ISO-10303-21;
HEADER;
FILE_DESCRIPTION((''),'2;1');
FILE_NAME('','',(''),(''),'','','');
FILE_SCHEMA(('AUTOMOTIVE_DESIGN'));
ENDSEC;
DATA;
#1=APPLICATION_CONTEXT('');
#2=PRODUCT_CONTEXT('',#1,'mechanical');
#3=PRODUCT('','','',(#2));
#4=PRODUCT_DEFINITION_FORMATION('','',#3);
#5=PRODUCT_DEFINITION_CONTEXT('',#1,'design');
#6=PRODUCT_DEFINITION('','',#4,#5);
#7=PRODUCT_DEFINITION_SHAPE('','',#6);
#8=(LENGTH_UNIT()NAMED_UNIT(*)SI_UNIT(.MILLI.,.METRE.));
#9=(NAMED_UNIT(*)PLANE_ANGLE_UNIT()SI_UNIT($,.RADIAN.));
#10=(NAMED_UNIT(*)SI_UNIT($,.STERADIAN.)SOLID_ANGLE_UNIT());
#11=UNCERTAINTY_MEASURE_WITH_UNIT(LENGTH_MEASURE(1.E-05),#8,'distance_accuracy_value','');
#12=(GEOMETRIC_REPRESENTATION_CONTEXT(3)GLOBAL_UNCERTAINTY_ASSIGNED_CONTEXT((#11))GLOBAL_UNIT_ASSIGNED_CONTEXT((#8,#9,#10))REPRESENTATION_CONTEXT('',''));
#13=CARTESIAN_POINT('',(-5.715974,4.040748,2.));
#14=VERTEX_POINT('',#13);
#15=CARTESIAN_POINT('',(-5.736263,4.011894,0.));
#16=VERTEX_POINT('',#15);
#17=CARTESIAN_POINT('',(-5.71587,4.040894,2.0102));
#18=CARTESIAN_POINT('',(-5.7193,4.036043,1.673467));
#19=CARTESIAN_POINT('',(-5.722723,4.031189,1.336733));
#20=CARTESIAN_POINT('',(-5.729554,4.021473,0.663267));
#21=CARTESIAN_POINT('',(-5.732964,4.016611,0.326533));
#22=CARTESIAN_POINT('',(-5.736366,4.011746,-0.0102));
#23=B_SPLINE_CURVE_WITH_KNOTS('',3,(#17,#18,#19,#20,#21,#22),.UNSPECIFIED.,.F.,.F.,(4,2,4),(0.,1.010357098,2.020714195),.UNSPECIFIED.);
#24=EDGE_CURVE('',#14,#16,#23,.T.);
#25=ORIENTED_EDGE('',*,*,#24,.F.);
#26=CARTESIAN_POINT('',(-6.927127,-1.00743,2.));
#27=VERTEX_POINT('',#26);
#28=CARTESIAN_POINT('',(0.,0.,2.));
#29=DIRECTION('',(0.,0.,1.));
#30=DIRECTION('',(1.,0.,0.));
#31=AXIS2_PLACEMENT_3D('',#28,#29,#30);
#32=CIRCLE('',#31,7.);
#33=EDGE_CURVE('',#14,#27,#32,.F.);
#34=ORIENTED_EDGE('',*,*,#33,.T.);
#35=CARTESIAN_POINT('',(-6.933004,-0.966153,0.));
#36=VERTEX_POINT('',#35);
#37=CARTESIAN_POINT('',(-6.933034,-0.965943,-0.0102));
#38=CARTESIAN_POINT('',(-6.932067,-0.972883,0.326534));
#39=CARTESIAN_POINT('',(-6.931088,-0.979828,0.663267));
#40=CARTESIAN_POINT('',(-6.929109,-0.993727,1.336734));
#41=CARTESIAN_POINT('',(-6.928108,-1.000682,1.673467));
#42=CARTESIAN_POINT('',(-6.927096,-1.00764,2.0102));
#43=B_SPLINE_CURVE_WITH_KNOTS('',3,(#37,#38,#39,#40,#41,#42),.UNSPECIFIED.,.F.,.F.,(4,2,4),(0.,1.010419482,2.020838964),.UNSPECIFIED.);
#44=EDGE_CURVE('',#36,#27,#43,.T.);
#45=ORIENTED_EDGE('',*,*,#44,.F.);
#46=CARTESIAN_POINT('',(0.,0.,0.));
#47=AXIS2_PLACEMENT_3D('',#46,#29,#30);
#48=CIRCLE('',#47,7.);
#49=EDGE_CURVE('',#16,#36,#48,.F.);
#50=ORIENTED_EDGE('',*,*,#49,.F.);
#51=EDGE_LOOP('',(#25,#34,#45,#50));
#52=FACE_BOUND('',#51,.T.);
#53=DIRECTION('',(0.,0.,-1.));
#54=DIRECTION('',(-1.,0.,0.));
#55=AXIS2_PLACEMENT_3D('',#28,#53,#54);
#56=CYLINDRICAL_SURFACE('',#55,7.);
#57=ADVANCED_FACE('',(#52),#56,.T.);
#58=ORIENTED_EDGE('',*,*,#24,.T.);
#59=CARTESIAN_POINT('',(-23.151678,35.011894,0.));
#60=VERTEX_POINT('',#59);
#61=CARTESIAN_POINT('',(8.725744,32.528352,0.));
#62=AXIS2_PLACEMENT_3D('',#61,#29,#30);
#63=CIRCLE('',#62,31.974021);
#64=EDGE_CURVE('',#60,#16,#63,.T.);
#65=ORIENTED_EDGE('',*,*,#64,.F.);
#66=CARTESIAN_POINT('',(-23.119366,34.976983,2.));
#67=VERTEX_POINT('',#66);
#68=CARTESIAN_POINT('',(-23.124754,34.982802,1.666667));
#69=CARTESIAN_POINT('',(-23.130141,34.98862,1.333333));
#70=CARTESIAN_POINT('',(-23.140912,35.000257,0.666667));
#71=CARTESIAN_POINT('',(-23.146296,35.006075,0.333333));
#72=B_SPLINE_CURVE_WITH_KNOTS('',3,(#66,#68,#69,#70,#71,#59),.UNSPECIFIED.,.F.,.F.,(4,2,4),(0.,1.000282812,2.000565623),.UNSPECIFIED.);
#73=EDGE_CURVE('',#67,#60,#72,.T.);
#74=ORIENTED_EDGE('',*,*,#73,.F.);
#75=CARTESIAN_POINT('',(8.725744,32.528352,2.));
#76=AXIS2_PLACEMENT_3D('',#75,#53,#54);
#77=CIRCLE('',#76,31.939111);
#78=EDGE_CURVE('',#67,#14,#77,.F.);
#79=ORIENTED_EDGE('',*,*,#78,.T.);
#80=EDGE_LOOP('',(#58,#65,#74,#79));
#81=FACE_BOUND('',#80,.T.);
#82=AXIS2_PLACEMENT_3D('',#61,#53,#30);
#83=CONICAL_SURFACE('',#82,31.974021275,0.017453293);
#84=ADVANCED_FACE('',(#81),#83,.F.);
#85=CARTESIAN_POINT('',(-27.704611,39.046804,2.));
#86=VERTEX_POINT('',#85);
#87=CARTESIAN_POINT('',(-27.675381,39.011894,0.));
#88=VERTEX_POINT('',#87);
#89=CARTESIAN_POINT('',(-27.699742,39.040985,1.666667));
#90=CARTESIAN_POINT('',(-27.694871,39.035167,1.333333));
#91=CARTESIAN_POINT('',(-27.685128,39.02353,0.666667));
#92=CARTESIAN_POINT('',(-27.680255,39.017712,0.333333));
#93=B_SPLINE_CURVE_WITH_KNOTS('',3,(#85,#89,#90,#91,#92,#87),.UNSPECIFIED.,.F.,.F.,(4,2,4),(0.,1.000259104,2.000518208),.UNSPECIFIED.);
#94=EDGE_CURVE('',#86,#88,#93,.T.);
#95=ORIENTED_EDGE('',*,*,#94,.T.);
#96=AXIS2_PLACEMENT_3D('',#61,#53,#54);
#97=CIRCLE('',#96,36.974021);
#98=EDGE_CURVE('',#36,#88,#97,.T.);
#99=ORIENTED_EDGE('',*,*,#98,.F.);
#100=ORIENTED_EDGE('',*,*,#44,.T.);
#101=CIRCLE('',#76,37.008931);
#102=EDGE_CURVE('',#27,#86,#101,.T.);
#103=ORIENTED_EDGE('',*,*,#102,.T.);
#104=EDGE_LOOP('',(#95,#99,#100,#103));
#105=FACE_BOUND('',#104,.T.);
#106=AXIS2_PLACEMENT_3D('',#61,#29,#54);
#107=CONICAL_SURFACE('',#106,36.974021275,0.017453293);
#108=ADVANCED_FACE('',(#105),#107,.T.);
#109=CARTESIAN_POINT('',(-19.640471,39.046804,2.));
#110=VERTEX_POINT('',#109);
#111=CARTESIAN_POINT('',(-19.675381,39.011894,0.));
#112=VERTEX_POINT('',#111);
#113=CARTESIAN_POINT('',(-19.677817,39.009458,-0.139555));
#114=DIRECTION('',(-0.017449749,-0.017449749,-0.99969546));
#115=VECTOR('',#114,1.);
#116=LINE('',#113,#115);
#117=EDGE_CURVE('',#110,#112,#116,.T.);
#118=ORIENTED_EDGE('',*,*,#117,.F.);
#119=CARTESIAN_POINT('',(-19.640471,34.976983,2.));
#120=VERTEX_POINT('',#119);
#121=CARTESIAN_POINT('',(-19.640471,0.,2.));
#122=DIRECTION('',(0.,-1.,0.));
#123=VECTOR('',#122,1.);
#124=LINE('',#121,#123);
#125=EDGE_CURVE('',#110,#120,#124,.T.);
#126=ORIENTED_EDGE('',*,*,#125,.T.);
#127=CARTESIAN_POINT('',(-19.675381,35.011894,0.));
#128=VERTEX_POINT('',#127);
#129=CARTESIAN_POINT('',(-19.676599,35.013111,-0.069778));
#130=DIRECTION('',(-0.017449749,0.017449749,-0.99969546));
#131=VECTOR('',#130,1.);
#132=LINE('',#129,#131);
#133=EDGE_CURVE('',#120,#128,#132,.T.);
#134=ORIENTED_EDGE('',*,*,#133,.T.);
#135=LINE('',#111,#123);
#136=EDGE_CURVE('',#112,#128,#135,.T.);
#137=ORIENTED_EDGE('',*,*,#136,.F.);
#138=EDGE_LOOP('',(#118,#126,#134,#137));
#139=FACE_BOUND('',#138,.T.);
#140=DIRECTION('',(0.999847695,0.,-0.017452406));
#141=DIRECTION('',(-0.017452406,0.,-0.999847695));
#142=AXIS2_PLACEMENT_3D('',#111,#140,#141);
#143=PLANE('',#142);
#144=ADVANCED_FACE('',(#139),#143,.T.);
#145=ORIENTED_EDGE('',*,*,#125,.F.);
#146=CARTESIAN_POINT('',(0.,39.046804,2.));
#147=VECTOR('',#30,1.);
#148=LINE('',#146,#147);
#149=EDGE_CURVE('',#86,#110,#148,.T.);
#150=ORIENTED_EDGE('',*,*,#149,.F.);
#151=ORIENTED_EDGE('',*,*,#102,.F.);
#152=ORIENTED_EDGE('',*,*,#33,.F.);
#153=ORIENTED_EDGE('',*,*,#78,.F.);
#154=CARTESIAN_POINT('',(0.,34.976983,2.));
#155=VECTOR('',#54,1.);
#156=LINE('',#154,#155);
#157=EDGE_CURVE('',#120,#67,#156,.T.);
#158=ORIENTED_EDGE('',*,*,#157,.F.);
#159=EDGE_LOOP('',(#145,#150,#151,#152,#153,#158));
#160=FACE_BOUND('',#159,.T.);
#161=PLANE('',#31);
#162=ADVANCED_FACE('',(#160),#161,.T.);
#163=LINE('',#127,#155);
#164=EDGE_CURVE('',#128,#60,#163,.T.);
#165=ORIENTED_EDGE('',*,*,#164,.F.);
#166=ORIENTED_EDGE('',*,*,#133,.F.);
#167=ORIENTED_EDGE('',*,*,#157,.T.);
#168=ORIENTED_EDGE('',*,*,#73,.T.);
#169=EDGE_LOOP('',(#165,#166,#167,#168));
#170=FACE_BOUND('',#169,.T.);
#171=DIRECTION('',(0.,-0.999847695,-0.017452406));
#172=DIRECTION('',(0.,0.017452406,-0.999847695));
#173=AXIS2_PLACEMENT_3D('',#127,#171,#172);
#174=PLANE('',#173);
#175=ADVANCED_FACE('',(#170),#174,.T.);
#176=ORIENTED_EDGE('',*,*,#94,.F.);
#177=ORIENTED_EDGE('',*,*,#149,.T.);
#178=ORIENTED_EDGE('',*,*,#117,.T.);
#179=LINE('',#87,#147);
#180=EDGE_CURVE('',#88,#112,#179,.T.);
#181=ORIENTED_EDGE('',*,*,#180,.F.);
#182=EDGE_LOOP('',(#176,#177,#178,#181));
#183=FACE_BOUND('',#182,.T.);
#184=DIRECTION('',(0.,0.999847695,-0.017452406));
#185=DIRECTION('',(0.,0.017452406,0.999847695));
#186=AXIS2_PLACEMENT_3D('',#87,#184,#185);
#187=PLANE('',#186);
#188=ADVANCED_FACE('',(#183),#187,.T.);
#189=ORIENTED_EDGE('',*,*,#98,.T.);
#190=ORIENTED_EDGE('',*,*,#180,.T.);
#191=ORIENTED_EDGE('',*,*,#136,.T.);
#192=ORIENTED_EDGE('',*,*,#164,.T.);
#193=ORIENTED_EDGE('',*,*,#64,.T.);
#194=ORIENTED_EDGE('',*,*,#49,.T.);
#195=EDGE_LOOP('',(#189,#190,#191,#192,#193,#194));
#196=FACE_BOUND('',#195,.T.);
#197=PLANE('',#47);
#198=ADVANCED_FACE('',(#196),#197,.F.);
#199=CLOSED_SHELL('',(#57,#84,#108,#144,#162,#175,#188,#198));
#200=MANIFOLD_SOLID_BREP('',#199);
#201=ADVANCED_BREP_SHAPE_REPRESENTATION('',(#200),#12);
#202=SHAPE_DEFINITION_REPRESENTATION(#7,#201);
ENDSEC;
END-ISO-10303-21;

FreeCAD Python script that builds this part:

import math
import FreeCAD as App
import Part
import Sketcher
from FreeCAD import Vector
Q = App.Units.Quantity


def faces_at(feature, points):
    """Names of the faces that lie closest to the given points."""
    faces = feature.Shape.Faces
    near = lambda p: min(range(len(faces)), key=lambda i: faces[i].distToShape(Part.Vertex(*p))[0])
    return sorted({f"Face{near(p) + 1}" for p in points})

doc = App.newDocument("Part")
params = doc.addObject("Spreadsheet::Sheet", "Params")
for row, (alias, value) in enumerate([
    ("sketch1_radius", "7 mm"),
    ("pad1_length", "2 mm"),
    ("sketch2_radius", "7 mm"),
    ("sketch2_width", "8 mm"),
    ("sketch2_height", "4 mm"),
    ("pad2_length", "2 mm"),
    ("draft_angle", "1 deg"),
], start=1):
    params.set(f"A{row}", alias)
    params.set(f"B{row}", "=" + value)
    params.setAlias(f"B{row}", alias)

body = doc.addObject("PartDesign::Body", "Body")

sketch1 = doc.addObject("Sketcher::SketchObject", "Sketch")
body.addObject(sketch1)
sketch1.AttachmentSupport = (doc.XY_Plane, [""])
sketch1.MapMode = "FlatFace"
sketch1.addGeometry([
    Part.ArcOfCircle(Part.Circle(Vector(0, 0, 0), Vector(0, 0, 1), 7), math.radians(-39.76), math.radians(-23.34)),
    Part.ArcOfCircle(Part.Circle(Vector(0, 0, 0), Vector(0, 0, 1), 7), math.radians(-23), math.radians(320)),
], False)
sketch1.addConstraint([
    Sketcher.Constraint("Tangent", 0, 1, 1, 2),
    Sketcher.Constraint("Coincident", 1, 1, 0, 2),
    Sketcher.Constraint("Coincident", 0, 3, -1, 1),
    Sketcher.Constraint("Radius", 0, Q("7 mm")),
    Sketcher.Constraint("DistanceY", 0, 1, -1, 1, Q("4.477418 mm")),
    Sketcher.Constraint("DistanceX", -1, 1, 1, 1, Q("6.427292 mm")),
])
sketch1.setExpression("Constraints[3]", "Params.sketch1_radius")
pad1 = doc.addObject("PartDesign::Pad", "Pad")
body.addObject(pad1)
pad1.Profile = sketch1
pad1.setExpression("Length", "Params.pad1_length")
body2 = doc.addObject("PartDesign::Body", "Body001")

sketch2 = doc.addObject("Sketcher::SketchObject", "Sketch001")
body2.addObject(sketch2)
sketch2.AttachmentSupport = (doc.getObject("XY_Plane001"), [""])
sketch2.MapMode = "FlatFace"
sketch2.addGeometry([
    Part.LineSegment(Vector(-27.7, 39, 0), Vector(-19.7, 39, 0)),
    Part.LineSegment(Vector(-19.7, 39, 0), Vector(-19.7, 35, 0)),
    Part.LineSegment(Vector(-19.7, 35, 0), Vector(-23.2, 35, 0)),
    Part.ArcOfCircle(Part.Circle(Vector(8.7, 32.5, 0), Vector(0, 0, 1), 32), math.radians(176), math.radians(243)),
    Part.ArcOfCircle(Part.Circle(Vector(0, 0, 0), Vector(0, 0, 1), 7), math.radians(145), math.radians(188)),
    Part.ArcOfCircle(Part.Circle(Vector(8.7, 32.5, 0), Vector(0, 0, 1), 37), math.radians(170), math.radians(245)),
], False)
sketch2.addConstraint([
    Sketcher.Constraint("Coincident", 0, 2, 1, 1),
    Sketcher.Constraint("Coincident", 1, 2, 2, 1),
    Sketcher.Constraint("Coincident", 2, 2, 3, 1),
    Sketcher.Constraint("Coincident", 3, 2, 4, 1),
    Sketcher.Constraint("Coincident", 4, 2, 5, 2),
    Sketcher.Constraint("Coincident", 5, 1, 0, 1),
    Sketcher.Constraint("Horizontal", 0),
    Sketcher.Constraint("Vertical", 1),
    Sketcher.Constraint("Horizontal", 2),
    Sketcher.Constraint("Coincident", 4, 3, -1, 1),
    Sketcher.Constraint("Coincident", 5, 3, 3, 3),
    Sketcher.Constraint("Radius", 4, Q("7 mm")),
    Sketcher.Constraint("DistanceX", 0, 1, 0, 2, Q("8 mm")),
    Sketcher.Constraint("DistanceY", 1, 2, 1, 1, Q("4 mm")),
    Sketcher.Constraint("DistanceY", 3, 2, 1, 2, Q("31 mm")),
    Sketcher.Constraint("Radius", 3, Q("31.974021 mm")),
    Sketcher.Constraint("Radius", 5, Q("36.974021 mm")),
    Sketcher.Constraint("DistanceX", 2, 2, 2, 1, Q("3.476297 mm")),
    Sketcher.Constraint("DistanceY", -1, 1, 3, 3, Q("32.528352 mm")),
])
sketch2.setExpression("Constraints[11]", "Params.sketch2_radius")
sketch2.setExpression("Constraints[12]", "Params.sketch2_width")
sketch2.setExpression("Constraints[13]", "Params.sketch2_height")
pad2 = doc.addObject("PartDesign::Pad", "Pad001")
body2.addObject(pad2)
pad2.Profile = sketch2
pad2.setExpression("Length", "Params.pad2_length")
doc.recompute()

draft = doc.addObject("PartDesign::Draft", "Draft")
body2.addObject(draft)
draft.Base = (pad2, faces_at(pad2, [
    (-24.094, 15.5, 1),
    (-23.675, 39.012, 1),
    (-19.675, 37.012, 1),
    (-21.414, 35.012, 1),
    (-19.151, 16.868, 1),
    (-6.806, 1.636, 1),
]))
draft.NeutralPlane = (doc.getObject("XY_Plane001"), [""])
draft.setExpression("Angle", "Params.draft_angle")
draft.Reversed = True
doc.recompute()

boolean = doc.addObject("PartDesign::Boolean", "Boolean")
body.addObject(boolean)
boolean.Type = "Fuse"
boolean.addObjects([body2])

doc.recompute()
